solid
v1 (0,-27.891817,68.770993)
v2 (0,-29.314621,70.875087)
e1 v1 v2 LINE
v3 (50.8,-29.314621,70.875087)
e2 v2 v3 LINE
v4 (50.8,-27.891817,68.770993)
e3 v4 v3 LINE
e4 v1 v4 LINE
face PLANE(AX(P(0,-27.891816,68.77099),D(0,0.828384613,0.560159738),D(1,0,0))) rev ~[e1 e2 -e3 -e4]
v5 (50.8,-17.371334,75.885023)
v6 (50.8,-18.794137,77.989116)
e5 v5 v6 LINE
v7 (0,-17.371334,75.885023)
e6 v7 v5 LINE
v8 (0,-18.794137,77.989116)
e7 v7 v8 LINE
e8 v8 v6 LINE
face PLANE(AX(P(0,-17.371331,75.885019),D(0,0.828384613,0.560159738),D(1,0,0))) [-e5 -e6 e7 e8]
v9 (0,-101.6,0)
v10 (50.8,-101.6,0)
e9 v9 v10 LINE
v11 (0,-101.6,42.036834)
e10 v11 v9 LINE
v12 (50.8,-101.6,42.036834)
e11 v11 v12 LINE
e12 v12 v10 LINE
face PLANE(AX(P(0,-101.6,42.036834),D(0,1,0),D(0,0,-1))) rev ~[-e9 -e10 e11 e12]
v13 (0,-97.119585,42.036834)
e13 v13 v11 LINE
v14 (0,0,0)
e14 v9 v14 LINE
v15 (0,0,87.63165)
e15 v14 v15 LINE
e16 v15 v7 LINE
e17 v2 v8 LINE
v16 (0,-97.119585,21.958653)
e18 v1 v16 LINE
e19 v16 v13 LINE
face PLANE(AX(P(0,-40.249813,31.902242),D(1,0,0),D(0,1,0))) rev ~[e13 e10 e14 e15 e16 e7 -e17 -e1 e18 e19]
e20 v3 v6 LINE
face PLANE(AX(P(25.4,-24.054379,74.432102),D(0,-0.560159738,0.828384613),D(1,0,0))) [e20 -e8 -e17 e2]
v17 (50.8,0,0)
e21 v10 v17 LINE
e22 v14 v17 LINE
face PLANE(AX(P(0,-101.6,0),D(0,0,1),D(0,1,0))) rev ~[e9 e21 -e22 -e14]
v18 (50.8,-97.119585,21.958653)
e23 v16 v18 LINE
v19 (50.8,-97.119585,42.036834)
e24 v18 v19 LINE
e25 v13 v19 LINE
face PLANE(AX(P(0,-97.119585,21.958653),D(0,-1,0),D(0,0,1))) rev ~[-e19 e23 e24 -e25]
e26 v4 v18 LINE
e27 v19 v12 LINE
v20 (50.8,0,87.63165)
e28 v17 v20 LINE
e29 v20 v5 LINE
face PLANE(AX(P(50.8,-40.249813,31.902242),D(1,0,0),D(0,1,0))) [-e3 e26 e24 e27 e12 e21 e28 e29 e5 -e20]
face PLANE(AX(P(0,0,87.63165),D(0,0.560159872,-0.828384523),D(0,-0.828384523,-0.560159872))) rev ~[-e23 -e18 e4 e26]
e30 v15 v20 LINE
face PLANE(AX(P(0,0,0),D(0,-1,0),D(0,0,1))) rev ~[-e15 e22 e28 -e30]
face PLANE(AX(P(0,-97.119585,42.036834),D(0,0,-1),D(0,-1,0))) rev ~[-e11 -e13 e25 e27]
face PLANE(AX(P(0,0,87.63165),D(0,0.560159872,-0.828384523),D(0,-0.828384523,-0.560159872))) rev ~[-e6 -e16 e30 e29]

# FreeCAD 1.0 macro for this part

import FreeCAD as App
import Part
import Sketcher
Q = App.Units.Quantity

doc = App.newDocument("Part")
body = doc.addObject("PartDesign::Body", "Body")

sketch1 = body.newObject("Sketcher::SketchObject", "Sketch")
sketch1.AttachmentSupport = (doc.getObject("YZ_Plane"), [""])
sketch1.MapMode = "FlatFace"
sketch1.addGeometry([
    Part.LineSegment(App.Vector(-101.6, 0, 0), App.Vector(0, 0, 0)),
    Part.LineSegment(App.Vector(0, 0, 0), App.Vector(0, 87.63165, 0)),
    Part.LineSegment(App.Vector(0, 87.63165, 0), App.Vector(-97.119585, 21.958653, 0)),
    Part.LineSegment(App.Vector(-97.119585, 21.958653, 0), App.Vector(-97.119585, 42.036834, 0)),
    Part.LineSegment(App.Vector(-97.119585, 42.036834, 0), App.Vector(-101.6, 42.036834, 0)),
    Part.LineSegment(App.Vector(-101.6, 42.036834, 0), App.Vector(-101.6, 0, 0)),
], False)
sketch1.addConstraint([
    Sketcher.Constraint("Coincident", 0, 2, 1, 1),
    Sketcher.Constraint("Coincident", 1, 2, 2, 1),
    Sketcher.Constraint("Coincident", 2, 2, 3, 1),
    Sketcher.Constraint("Coincident", 3, 2, 4, 1),
    Sketcher.Constraint("Coincident", 4, 2, 5, 1),
    Sketcher.Constraint("Coincident", 5, 2, 0, 1),
    Sketcher.Constraint("Horizontal", 0),
    Sketcher.Constraint("Vertical", 1),
    Sketcher.Constraint("Vertical", 3),
    Sketcher.Constraint("Horizontal", 4),
    Sketcher.Constraint("Vertical", 5),
    Sketcher.Constraint("Coincident", 0, 2, -1, 1),
    Sketcher.Constraint("DistanceX", 0, 1, 0, 2, Q("4 in")),
    Sketcher.Constraint("DistanceY", 1, 1, 1, 2, 87.63165),
    Sketcher.Constraint("DistanceY", 3, 1, 3, 2, 20.078181),
    Sketcher.Constraint("Distance", 2, 117.239739),
    Sketcher.Constraint("DistanceX", 4, 2, 4, 1, 4.480415),
])
pad1 = body.newObject("PartDesign::Pad", "Pad")
pad1.Profile = sketch1
pad1.Length = Q("2 in")

sketch2 = body.newObject("Sketcher::SketchObject", "Sketch001")
sketch2.Placement = App.Placement(App.Vector(0, -40.663519, 60.134671), App.Rotation(App.Vector(1, 0, 0), App.Vector(0, 0.828384613, 0.560159738), App.Vector(0, -0.560159738, 0.828384613), "ZXY"))
sketch2.addGeometry([
    Part.LineSegment(App.Vector(0, 28.117601, 0), App.Vector(0, 15.417601, 0)),
    Part.LineSegment(App.Vector(0, 15.417601, 0), App.Vector(50.8, 15.417601, 0)),
    Part.LineSegment(App.Vector(50.8, 15.417601, 0), App.Vector(50.8, 28.117601, 0)),
    Part.LineSegment(App.Vector(50.8, 28.117601, 0), App.Vector(0, 28.117601, 0)),
], False)
sketch2.addConstraint([
    Sketcher.Constraint("Coincident", 0, 2, 1, 1),
    Sketcher.Constraint("Coincident", 1, 2, 2, 1),
    Sketcher.Constraint("Coincident", 2, 2, 3, 1),
    Sketcher.Constraint("Coincident", 3, 2, 0, 1),
    Sketcher.Constraint("Vertical", 0),
    Sketcher.Constraint("Horizontal", 1),
    Sketcher.Constraint("Vertical", 2),
    Sketcher.Constraint("Horizontal", 3),
    Sketcher.Constraint("PointOnObject", 0, 2, -2),
    Sketcher.Constraint("DistanceX", 1, 1, 1, 2, Q("2 in")),
    Sketcher.Constraint("DistanceY", 0, 2, 0, 1, Q("0.5 in")),
    Sketcher.Constraint("DistanceY", -1, 1, 0, 2, 15.417601),
])
pad2 = body.newObject("PartDesign::Pad", "Pad001")
pad2.Profile = sketch2
pad2.Length = Q("0.1 in")

doc.recompute()
